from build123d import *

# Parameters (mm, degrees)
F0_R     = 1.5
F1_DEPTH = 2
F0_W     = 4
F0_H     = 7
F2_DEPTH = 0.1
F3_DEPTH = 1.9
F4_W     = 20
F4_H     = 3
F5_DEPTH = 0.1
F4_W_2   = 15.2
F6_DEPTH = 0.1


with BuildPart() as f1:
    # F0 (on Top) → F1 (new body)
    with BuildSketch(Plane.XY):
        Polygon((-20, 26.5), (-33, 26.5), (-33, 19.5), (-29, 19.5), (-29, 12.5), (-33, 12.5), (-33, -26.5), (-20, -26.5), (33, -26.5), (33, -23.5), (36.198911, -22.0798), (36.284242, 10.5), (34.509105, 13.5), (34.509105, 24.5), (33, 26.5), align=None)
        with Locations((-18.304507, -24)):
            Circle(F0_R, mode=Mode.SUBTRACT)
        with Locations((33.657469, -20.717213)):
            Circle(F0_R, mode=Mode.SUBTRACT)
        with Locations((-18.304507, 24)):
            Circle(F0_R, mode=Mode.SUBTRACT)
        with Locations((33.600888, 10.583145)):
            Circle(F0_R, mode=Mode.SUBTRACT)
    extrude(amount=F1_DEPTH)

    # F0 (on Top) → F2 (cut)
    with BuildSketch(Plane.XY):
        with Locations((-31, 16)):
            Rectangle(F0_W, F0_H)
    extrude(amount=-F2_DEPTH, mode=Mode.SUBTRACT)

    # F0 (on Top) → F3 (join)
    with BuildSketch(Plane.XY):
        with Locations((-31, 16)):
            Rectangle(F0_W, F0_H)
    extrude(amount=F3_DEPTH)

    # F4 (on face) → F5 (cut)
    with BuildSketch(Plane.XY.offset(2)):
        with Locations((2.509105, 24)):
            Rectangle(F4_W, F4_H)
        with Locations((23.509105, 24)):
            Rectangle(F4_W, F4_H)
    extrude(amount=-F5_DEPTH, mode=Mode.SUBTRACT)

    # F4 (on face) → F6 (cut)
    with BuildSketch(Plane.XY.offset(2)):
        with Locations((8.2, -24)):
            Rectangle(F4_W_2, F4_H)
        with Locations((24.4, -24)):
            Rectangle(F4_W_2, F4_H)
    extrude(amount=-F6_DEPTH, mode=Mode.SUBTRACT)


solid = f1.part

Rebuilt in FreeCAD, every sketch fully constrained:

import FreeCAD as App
import Part
import Sketcher

V = App.Vector
Q = App.Units.Quantity


def add_polygon(sketch, points):
    """Adds a closed chain of lines whose ends are joined by coincident constraints."""
    first, n = sketch.GeometryCount, len(points)
    for a, b in zip(points, points[1:] + points[:1]):
        sketch.addGeometry(Part.LineSegment(App.Vector(*a, 0), App.Vector(*b, 0)), False)
    for i in range(n):
        sketch.addConstraint(Sketcher.Constraint("Coincident", first + i, 2, first + (i + 1) % n, 1))

doc = App.newDocument("Part")
body = doc.addObject("PartDesign::Body", "Body")

sketch1 = doc.addObject("Sketcher::SketchObject", "Sketch")
body.addObject(sketch1)
sketch1.AttachmentSupport = (doc.XY_Plane, [""])
sketch1.MapMode = "FlatFace"
add_polygon(sketch1, [(-33, 26.5), (-33, 19.5), (-29, 19.5), (-29, 12.5), (-33, 12.5), (-33, -26.5), (33, -26.5), (33, -23.5), (36.2, -22.1), (36.3, 10.5), (34.5, 13.5), (34.5, 24.5), (33, 26.5)])
sketch1.addGeometry(Part.Circle(V(-18.3, -24, 0), V(0, 0, 1), 1.5), False)
sketch1.addGeometry(Part.Circle(V(33.7, -20.7, 0), V(0, 0, 1), 1.5), False)
sketch1.addGeometry(Part.Circle(V(-18.3, 24, 0), V(0, 0, 1), 1.5), False)
sketch1.addGeometry(Part.Circle(V(33.6, 10.6, 0), V(0, 0, 1), 1.5), False)
sketch1.addConstraint([
    Sketcher.Constraint("Vertical", 0),
    Sketcher.Constraint("Horizontal", 1),
    Sketcher.Constraint("Vertical", 2),
    Sketcher.Constraint("Horizontal", 3),
    Sketcher.Constraint("Vertical", 4),
    Sketcher.Constraint("Horizontal", 5),
    Sketcher.Constraint("Vertical", 6),
    Sketcher.Constraint("Vertical", 10),
    Sketcher.Constraint("Horizontal", 12),
    Sketcher.Constraint("Equal", 13, 14),
    Sketcher.Constraint("Equal", 14, 15),
    Sketcher.Constraint("Equal", 15, 16),
    Sketcher.Constraint("Symmetric", 4, 2, 11, 2, -1, 1),
    Sketcher.Constraint("Symmetric", 13, 3, 15, 3, -1),
    Sketcher.Constraint("Vertical", 0, 2, 3, 2),
    Sketcher.Constraint("Vertical", 6, 2, 11, 2),
    Sketcher.Constraint("Equal", 0, 2),
    Sketcher.Constraint("Diameter", 13, Q("3 mm")),
    Sketcher.Constraint("DistanceX", 1, 1, 1, 2, Q("4 mm")),
    Sketcher.Constraint("DistanceX", 5, 1, 5, 2, Q("66 mm")),
    Sketcher.Constraint("DistanceY", 0, 2, 0, 1, Q("7 mm")),
    Sketcher.Constraint("DistanceY", 4, 2, 4, 1, Q("39 mm")),
    Sketcher.Constraint("DistanceY", 6, 1, 6, 2, Q("3 mm")),
    Sketcher.Constraint("DistanceY", 10, 1, 10, 2, Q("11 mm")),
    Sketcher.Constraint("DistanceY", 13, 3, -1, 1, Q("24 mm")),
    Sketcher.Constraint("DistanceY", 6, 2, 8, 2, Q("34 mm")),
    Sketcher.Constraint("DistanceY", 8, 2, 9, 2, Q("3 mm")),
    Sketcher.Constraint("Distance", 7, Q("3.5 mm")),
    Sketcher.Constraint("DistanceY", 7, 2, -1, 1, Q("22.0798 mm")),
    Sketcher.Constraint("DistanceX", -1, 1, 14, 3, Q("33.657469 mm")),
    Sketcher.Constraint("DistanceX", 16, 3, 14, 3, Q("0.056581 mm")),
    Sketcher.Constraint("DistanceY", 14, 3, 16, 3, Q("31.300358 mm")),
    Sketcher.Constraint("DistanceX", 13, 3, 7, 2, Q("54.503418 mm")),
    Sketcher.Constraint("DistanceX", 7, 2, 8, 2, Q("0.085331 mm")),
    Sketcher.Constraint("Distance", 9, Q("3.485844 mm")),
    Sketcher.Constraint("DistanceY", 14, 3, -1, 1, Q("20.717213 mm")),
])
pad1 = doc.addObject("PartDesign::Pad", "Pad")
body.addObject(pad1)
pad1.Profile = sketch1
pad1.Length = 2

sketch2 = doc.addObject("Sketcher::SketchObject", "Sketch001")
body.addObject(sketch2)
sketch2.AttachmentSupport = (doc.XY_Plane, [""])
sketch2.MapMode = "FlatFace"
add_polygon(sketch2, [(-33, 19.5), (-33, 12.5), (-29, 12.5), (-29, 19.5)])
sketch2.addConstraint([
    Sketcher.Constraint("Vertical", 0),
    Sketcher.Constraint("Horizontal", 1),
    Sketcher.Constraint("Vertical", 2),
    Sketcher.Constraint("Horizontal", 3),
    Sketcher.Constraint("DistanceX", 1, 1, 1, 2, Q("4 mm")),
    Sketcher.Constraint("DistanceY", 0, 2, 0, 1, Q("7 mm")),
    Sketcher.Constraint("DistanceX", 0, 2, -1, 1, Q("33 mm")),
    Sketcher.Constraint("DistanceY", -1, 1, 0, 2, Q("12.5 mm")),
])
pocket1 = doc.addObject("PartDesign::Pocket", "Pocket")
body.addObject(pocket1)
pocket1.Profile = sketch2
pocket1.Length = 0.1

sketch3 = doc.addObject("Sketcher::SketchObject", "Sketch002")
body.addObject(sketch3)
sketch3.AttachmentSupport = (doc.XY_Plane, [""])
sketch3.MapMode = "FlatFace"
add_polygon(sketch3, [(-33, 19.5), (-33, 12.5), (-29, 12.5), (-29, 19.5)])
sketch3.addConstraint([
    Sketcher.Constraint("Vertical", 0),
    Sketcher.Constraint("Horizontal", 1),
    Sketcher.Constraint("Vertical", 2),
    Sketcher.Constraint("Horizontal", 3),
    Sketcher.Constraint("DistanceX", 1, 1, 1, 2, Q("4 mm")),
    Sketcher.Constraint("DistanceY", 0, 2, 0, 1, Q("7 mm")),
    Sketcher.Constraint("DistanceX", 0, 2, -1, 1, Q("33 mm")),
    Sketcher.Constraint("DistanceY", -1, 1, 0, 2, Q("12.5 mm")),
])
pad2 = doc.addObject("PartDesign::Pad", "Pad001")
body.addObject(pad2)
pad2.Profile = sketch3
pad2.Length = 1.9

sketch4 = doc.addObject("Sketcher::SketchObject", "Sketch003")
body.addObject(sketch4)
sketch4.AttachmentSupport = (doc.XY_Plane, [""])
sketch4.MapMode = "FlatFace"
sketch4.AttachmentOffset = App.Placement(V(0, 0, 2), App.Rotation())
add_polygon(sketch4, [(-7.5, 25.5), (-7.5, 22.5), (12.5, 22.5), (12.5, 25.5)])
add_polygon(sketch4, [(13.5, 25.5), (13.5, 22.5), (33.5, 22.5), (33.5, 25.5)])
sketch4.addConstraint([
    Sketcher.Constraint("Vertical", 0),
    Sketcher.Constraint("Horizontal", 1),
    Sketcher.Constraint("Vertical", 2),
    Sketcher.Constraint("Horizontal", 3),
    Sketcher.Constraint("Vertical", 4),
    Sketcher.Constraint("Horizontal", 5),
    Sketcher.Constraint("Vertical", 6),
    Sketcher.Constraint("Horizontal", 7),
    Sketcher.Constraint("Horizontal", 1, 2, 4, 2),
    Sketcher.Constraint("Horizontal", 3, 2, 6, 2),
    Sketcher.Constraint("Equal", 3, 5),
    Sketcher.Constraint("DistanceX", 1, 1, 1, 2, Q("20 mm")),
    Sketcher.Constraint("DistanceY", 0, 2, 0, 1, Q("3 mm")),
    Sketcher.Constraint("DistanceX", 1, 2, 4, 2, Q("1 mm")),
    Sketcher.Constraint("DistanceY", -1, 1, 0, 2, Q("22.5 mm")),
    Sketcher.Constraint("DistanceX", 0, 2, -1, 1, Q("7.490895 mm")),
])
pocket2 = doc.addObject("PartDesign::Pocket", "Pocket001")
body.addObject(pocket2)
pocket2.Profile = sketch4
pocket2.Length = 0.1

sketch5 = doc.addObject("Sketcher::SketchObject", "Sketch004")
body.addObject(sketch5)
sketch5.AttachmentSupport = (doc.XY_Plane, [""])
sketch5.MapMode = "FlatFace"
sketch5.AttachmentOffset = App.Placement(V(0, 0, 2), App.Rotation())
add_polygon(sketch5, [(0.6, -22.5), (0.6, -25.5), (15.8, -25.5), (15.8, -22.5)])
add_polygon(sketch5, [(16.8, -22.5), (16.8, -25.5), (32, -25.5), (32, -22.5)])
sketch5.addConstraint([
    Sketcher.Constraint("Vertical", 0),
    Sketcher.Constraint("Horizontal", 1),
    Sketcher.Constraint("Vertical", 2),
    Sketcher.Constraint("Horizontal", 3),
    Sketcher.Constraint("Vertical", 4),
    Sketcher.Constraint("Horizontal", 5),
    Sketcher.Constraint("Vertical", 6),
    Sketcher.Constraint("Horizontal", 7),
    Sketcher.Constraint("Horizontal", 1, 2, 4, 2),
    Sketcher.Constraint("Horizontal", 3, 2, 6, 2),
    Sketcher.Constraint("Equal", 3, 5),
    Sketcher.Constraint("DistanceY", 0, 2, 0, 1, Q("3 mm")),
    Sketcher.Constraint("DistanceX", 1, 1, 1, 2, Q("15.2 mm")),
    Sketcher.Constraint("DistanceX", -1, 1, 5, 2, Q("32 mm")),
    Sketcher.Constraint("DistanceX", 1, 2, 4, 2, Q("1 mm")),
    Sketcher.Constraint("DistanceY", 0, 2, -1, 1, Q("25.5 mm")),
])
pocket3 = doc.addObject("PartDesign::Pocket", "Pocket002")
body.addObject(pocket3)
pocket3.Profile = sketch5
pocket3.Length = 0.1

doc.recompute()
